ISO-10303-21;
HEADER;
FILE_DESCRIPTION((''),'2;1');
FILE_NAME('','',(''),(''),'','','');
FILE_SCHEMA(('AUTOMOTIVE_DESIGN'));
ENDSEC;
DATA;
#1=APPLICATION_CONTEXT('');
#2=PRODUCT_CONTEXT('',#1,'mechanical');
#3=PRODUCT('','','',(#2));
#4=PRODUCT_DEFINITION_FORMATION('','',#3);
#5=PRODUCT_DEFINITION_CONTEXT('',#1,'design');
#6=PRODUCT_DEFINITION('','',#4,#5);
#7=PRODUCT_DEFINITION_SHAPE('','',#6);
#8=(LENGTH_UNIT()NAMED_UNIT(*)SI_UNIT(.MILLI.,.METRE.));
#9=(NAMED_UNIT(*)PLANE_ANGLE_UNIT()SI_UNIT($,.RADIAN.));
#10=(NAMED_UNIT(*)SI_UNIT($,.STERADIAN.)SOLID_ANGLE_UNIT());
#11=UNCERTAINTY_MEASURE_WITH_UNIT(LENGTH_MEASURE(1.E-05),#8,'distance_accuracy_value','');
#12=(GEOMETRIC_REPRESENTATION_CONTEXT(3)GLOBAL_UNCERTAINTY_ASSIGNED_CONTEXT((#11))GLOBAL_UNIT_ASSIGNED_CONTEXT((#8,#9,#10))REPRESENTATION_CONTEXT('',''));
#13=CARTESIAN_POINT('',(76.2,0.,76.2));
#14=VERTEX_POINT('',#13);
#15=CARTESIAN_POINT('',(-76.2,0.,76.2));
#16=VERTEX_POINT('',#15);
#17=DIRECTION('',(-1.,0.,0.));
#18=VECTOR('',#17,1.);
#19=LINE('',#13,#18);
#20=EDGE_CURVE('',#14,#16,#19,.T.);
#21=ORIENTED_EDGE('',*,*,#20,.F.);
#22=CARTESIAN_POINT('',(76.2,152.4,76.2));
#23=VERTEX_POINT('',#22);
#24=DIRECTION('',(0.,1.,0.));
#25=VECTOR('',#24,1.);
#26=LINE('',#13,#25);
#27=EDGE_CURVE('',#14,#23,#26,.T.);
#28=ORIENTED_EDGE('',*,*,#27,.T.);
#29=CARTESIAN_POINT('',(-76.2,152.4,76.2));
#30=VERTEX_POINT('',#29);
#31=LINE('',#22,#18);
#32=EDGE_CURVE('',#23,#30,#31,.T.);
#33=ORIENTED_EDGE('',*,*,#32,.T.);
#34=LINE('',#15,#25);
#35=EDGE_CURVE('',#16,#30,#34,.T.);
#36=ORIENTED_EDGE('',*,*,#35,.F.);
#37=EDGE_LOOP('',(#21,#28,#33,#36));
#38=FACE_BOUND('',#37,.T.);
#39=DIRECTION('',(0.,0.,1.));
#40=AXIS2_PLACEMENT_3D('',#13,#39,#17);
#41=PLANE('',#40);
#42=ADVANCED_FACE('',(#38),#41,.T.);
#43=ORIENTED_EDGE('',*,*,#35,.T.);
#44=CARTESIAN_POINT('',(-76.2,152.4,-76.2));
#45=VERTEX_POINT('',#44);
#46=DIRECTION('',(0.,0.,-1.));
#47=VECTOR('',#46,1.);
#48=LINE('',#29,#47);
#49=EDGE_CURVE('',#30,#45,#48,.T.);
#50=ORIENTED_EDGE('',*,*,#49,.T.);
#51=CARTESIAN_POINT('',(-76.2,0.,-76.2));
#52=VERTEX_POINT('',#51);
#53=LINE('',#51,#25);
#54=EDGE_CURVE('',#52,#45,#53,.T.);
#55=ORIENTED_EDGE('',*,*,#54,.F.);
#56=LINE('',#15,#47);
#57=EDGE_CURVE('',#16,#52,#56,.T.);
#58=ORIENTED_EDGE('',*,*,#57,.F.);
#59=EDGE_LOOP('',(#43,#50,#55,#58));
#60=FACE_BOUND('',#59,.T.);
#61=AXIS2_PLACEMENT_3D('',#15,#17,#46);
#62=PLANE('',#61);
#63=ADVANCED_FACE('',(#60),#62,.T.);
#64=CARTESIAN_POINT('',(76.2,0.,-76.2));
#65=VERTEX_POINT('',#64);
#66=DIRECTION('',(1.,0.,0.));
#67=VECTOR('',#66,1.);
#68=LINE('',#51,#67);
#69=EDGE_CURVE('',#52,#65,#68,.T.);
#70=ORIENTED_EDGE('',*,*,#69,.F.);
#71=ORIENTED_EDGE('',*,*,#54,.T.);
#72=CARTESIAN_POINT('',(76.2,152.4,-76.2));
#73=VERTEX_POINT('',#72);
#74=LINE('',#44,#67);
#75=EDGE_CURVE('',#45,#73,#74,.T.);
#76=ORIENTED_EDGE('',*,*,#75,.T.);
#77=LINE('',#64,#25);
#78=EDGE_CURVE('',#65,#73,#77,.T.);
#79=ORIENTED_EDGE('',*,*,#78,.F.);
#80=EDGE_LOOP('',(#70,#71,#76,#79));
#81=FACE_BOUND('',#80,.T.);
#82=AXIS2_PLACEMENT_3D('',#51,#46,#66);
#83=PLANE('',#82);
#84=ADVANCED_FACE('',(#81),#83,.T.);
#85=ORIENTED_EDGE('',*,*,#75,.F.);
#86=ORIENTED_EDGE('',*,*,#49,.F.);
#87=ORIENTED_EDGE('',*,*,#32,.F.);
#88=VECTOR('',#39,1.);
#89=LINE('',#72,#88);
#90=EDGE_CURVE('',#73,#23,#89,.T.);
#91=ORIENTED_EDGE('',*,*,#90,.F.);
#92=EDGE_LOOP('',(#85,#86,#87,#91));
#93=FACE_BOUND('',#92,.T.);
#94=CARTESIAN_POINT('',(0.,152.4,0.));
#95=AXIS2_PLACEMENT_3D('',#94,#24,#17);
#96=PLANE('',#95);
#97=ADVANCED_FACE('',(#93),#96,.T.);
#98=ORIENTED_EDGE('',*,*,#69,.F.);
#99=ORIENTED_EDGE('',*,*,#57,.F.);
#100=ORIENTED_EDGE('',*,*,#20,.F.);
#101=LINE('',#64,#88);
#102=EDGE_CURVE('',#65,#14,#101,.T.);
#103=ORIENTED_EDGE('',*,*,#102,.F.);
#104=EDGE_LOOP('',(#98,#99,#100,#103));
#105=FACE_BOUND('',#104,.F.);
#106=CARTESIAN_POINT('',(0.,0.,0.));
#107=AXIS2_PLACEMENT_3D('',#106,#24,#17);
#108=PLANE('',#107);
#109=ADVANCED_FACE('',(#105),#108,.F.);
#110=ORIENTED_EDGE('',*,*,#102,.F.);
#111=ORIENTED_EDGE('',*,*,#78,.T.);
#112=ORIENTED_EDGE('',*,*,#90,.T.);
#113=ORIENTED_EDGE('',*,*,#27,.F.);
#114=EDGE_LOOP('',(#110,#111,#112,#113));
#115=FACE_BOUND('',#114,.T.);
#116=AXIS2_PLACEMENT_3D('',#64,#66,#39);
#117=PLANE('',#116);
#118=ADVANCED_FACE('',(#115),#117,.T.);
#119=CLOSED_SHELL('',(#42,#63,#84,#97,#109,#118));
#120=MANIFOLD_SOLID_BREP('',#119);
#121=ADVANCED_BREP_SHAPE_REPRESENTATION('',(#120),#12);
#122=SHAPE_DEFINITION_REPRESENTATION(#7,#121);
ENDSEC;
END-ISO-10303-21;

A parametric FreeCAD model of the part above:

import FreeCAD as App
import Part
import Sketcher
from FreeCAD import Vector
Q = App.Units.Quantity


def add_polygon(sketch, points):
    """Adds a closed chain of lines whose ends are joined by coincident constraints."""
    first, n = sketch.GeometryCount, len(points)
    for a, b in zip(points, points[1:] + points[:1]):
        sketch.addGeometry(Part.LineSegment(App.Vector(*a, 0), App.Vector(*b, 0)), False)
    for i in range(n):
        sketch.addConstraint(Sketcher.Constraint("Coincident", first + i, 2, first + (i + 1) % n, 1))

doc = App.newDocument("Part")
body = doc.addObject("PartDesign::Body", "Body")

sketch1 = doc.addObject("Sketcher::SketchObject", "Sketch")
body.addObject(sketch1)
sketch1.AttachmentSupport = (doc.XZ_Plane, [""])
sketch1.MapMode = "FlatFace"
add_polygon(sketch1, [(-76, 76), (76, 76), (76, -76), (-76, -76)])
sketch1.addConstraint(Sketcher.Constraint("Horizontal", 0))
sketch1.addConstraint(Sketcher.Constraint("Vertical", 1))
sketch1.addConstraint(Sketcher.Constraint("Horizontal", 2))
sketch1.addConstraint(Sketcher.Constraint("Vertical", 3))
sketch1.addConstraint(Sketcher.Constraint("Symmetric", 0, 2, 2, 2, -1, 1))
sketch1.addConstraint(Sketcher.Constraint("Equal", 2, 1))
sketch1.addConstraint(Sketcher.Constraint("DistanceX", 0, 1, 0, 2, Q("6 in")))
pad1 = doc.addObject("PartDesign::Pad", "Pad")
body.addObject(pad1)
pad1.Profile = sketch1
pad1.Length = Q("6 in")
pad1.Reversed = True

doc.recompute()
